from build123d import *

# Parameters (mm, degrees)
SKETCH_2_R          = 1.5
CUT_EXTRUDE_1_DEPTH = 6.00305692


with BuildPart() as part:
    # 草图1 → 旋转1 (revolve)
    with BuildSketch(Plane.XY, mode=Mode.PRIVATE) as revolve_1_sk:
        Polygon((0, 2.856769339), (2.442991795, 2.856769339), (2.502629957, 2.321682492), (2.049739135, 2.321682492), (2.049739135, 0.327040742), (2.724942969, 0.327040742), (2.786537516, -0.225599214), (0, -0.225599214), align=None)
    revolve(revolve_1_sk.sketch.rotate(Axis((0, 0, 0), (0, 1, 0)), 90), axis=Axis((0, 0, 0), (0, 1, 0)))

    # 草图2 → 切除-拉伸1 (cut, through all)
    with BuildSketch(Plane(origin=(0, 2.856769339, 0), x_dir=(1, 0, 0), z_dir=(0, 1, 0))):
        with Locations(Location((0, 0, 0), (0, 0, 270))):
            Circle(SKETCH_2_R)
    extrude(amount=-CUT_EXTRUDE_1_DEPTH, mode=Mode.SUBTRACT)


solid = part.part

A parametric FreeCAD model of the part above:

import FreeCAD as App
import Part
import Sketcher

V = App.Vector
Q = App.Units.Quantity


def add_polygon(sketch, points):
    """Adds a closed chain of lines whose ends are joined by coincident constraints."""
    first, n = sketch.GeometryCount, len(points)
    for a, b in zip(points, points[1:] + points[:1]):
        sketch.addGeometry(Part.LineSegment(App.Vector(*a, 0), App.Vector(*b, 0)), False)
    for i in range(n):
        sketch.addConstraint(Sketcher.Constraint("Coincident", first + i, 2, first + (i + 1) % n, 1))

doc = App.newDocument("Part")
body = doc.addObject("PartDesign::Body", "Body")

# Sketch on XY plane
sketch1 = doc.addObject("Sketcher::SketchObject", "Sketch")
body.addObject(sketch1)
sketch1.AttachmentSupport = (doc.XY_Plane, [""])
sketch1.MapMode = "FlatFace"
add_polygon(sketch1, [(2.442992, 2.856769), (0, 2.856769), (0, -0.225599), (2.786538, -0.225599), (2.724943, 0.327041), (2.049739, 0.327041), (2.049739, 2.321682), (2.50263, 2.321682)])  # lines 0-7
sketch1.addConstraint(Sketcher.Constraint("Horizontal", 0))
sketch1.addConstraint(Sketcher.Constraint("Vertical", 1))
sketch1.addConstraint(Sketcher.Constraint("Horizontal", 2))
sketch1.addConstraint(Sketcher.Constraint("Horizontal", 4))
sketch1.addConstraint(Sketcher.Constraint("Vertical", 5))
sketch1.addConstraint(Sketcher.Constraint("Horizontal", 6))
sketch1.addConstraint(Sketcher.Constraint("PointOnObject", 0, 2, -2))
sketch1.addConstraint(Sketcher.Constraint("Parallel", 3, 7))
sketch1.addConstraint(Sketcher.Constraint("Distance", 7, Q("0.5384 mm")))
sketch1.addConstraint(Sketcher.Constraint("DistanceX", 0, 2, 0, 1, Q("2.442992 mm")))
sketch1.addConstraint(Sketcher.Constraint("DistanceX", 6, 1, 6, 2, Q("0.452891 mm")))
sketch1.addConstraint(Sketcher.Constraint("DistanceY", 1, 2, 1, 1, Q("3.082369 mm")))
sketch1.addConstraint(Sketcher.Constraint("DistanceY", 5, 1, 5, 2, Q("1.994642 mm")))
sketch1.addConstraint(Sketcher.Constraint("DistanceY", 1, 2, -1, 1, Q("0.225599 mm")))
sketch1.addConstraint(Sketcher.Constraint("DistanceX", 4, 2, 2, 2, Q("0.736798 mm")))
sketch1.addConstraint(Sketcher.Constraint("Distance", 3, Q("0.556062 mm")))
revolution = doc.addObject("PartDesign::Revolution", "Revolution")
body.addObject(revolution)
revolution.Profile = sketch1
revolution.ReferenceAxis = (sketch1, ["V_Axis"])
revolution.Angle = 360

# Sketch on XZ plane
sketch2 = doc.addObject("Sketcher::SketchObject", "Sketch001")
body.addObject(sketch2)
sketch2.AttachmentSupport = (doc.XZ_Plane, [""])
sketch2.MapMode = "FlatFace"
sketch2.AttachmentOffset = App.Placement(V(0, 0, -2.856769), App.Rotation())
sketch2.addGeometry(Part.Circle(V(0, 0, 0), V(0, 0, 1), 1.5), False)
sketch2.addConstraint(Sketcher.Constraint("Coincident", 0, 3, -1, 1))
sketch2.addConstraint(Sketcher.Constraint("Diameter", 0, Q("3 mm")))
pocket1 = doc.addObject("PartDesign::Pocket", "Pocket")
body.addObject(pocket1)
pocket1.Profile = sketch2
pocket1.Type = "ThroughAll"
pocket1.Reversed = True

doc.recompute()
